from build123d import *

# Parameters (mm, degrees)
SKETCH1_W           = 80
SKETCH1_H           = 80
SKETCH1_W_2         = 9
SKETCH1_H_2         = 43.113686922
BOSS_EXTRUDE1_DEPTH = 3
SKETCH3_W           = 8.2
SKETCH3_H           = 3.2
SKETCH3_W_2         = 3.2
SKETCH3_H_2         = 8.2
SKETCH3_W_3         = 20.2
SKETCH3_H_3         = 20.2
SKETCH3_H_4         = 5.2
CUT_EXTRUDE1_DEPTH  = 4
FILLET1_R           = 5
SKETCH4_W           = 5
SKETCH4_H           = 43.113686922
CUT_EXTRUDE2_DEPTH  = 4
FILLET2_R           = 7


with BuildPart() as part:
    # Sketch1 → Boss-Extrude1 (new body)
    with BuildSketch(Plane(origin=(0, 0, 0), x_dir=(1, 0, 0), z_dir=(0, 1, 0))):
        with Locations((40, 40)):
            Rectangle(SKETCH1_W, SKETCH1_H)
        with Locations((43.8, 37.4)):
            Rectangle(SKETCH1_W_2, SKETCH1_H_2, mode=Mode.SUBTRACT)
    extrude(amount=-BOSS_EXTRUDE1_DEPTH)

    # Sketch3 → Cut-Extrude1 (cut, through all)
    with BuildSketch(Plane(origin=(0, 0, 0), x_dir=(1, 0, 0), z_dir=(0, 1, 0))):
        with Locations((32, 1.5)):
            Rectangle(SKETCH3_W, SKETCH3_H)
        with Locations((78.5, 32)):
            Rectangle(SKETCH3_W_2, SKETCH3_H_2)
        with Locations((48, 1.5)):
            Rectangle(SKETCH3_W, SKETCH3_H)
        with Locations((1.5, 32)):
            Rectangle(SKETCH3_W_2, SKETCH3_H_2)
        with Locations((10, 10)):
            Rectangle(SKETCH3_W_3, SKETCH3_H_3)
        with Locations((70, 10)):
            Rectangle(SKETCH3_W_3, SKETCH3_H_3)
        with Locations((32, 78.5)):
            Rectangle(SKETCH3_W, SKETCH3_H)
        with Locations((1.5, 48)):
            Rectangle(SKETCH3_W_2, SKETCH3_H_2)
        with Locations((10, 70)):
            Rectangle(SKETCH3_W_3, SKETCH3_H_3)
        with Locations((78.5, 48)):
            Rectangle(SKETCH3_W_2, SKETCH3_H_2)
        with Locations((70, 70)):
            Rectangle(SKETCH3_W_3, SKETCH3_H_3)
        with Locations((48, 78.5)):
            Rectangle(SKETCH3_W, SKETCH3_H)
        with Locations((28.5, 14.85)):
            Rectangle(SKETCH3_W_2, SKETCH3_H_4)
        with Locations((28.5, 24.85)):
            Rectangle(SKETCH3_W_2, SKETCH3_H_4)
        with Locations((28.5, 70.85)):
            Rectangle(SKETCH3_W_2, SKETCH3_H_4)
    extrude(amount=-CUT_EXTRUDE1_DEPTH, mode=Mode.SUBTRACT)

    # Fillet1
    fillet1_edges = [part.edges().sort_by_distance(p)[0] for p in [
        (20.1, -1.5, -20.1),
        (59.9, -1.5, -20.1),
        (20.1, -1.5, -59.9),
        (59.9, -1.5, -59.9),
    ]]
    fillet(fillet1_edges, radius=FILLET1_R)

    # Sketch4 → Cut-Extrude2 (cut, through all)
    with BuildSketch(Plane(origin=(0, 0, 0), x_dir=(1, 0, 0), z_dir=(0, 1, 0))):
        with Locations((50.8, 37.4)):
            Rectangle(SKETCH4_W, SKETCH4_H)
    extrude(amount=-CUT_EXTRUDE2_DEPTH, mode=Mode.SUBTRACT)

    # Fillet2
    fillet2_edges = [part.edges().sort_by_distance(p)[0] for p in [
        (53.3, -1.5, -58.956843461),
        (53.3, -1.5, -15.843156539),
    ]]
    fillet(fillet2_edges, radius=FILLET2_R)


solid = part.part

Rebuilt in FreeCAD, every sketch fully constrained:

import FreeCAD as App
import Part
import Sketcher

V = App.Vector
Q = App.Units.Quantity


def edges_at(feature, points):
    """Names of the edges that pass closest to the given points."""
    edges = feature.Shape.Edges
    near = lambda p: min(range(len(edges)), key=lambda i: edges[i].distToShape(Part.Vertex(*p))[0])
    return sorted({f"Edge{near(p) + 1}" for p in points})

doc = App.newDocument("Part")
body = doc.addObject("PartDesign::Body", "Body")

# Sketch on XZ plane
sketch1 = doc.addObject("Sketcher::SketchObject", "Sketch")
body.addObject(sketch1)
sketch1.AttachmentSupport = (doc.XZ_Plane, [""])
sketch1.MapMode = "FlatFace"
sketch1.addGeometry(Part.LineSegment(V(0, -80, 0), V(0, 0, 0)), False)
sketch1.addGeometry(Part.LineSegment(V(0, 0, 0), V(80, 0, 0)), False)
sketch1.addGeometry(Part.LineSegment(V(80, 0, 0), V(80, -80, 0)), False)
sketch1.addGeometry(Part.LineSegment(V(80, -80, 0), V(0, -80, 0)), False)
sketch1.addGeometry(Part.LineSegment(V(48, -16, 0), V(39, -16, 0)), False)
sketch1.addGeometry(Part.LineSegment(V(39, -16, 0), V(39, -59, 0)), False)
sketch1.addGeometry(Part.LineSegment(V(39, -59, 0), V(48, -59, 0)), False)
sketch1.addGeometry(Part.LineSegment(V(48, -59, 0), V(48, -16, 0)), False)
sketch1.addConstraint(Sketcher.Constraint("Coincident", 0, 2, 1, 1))
sketch1.addConstraint(Sketcher.Constraint("Coincident", 1, 2, 2, 1))
sketch1.addConstraint(Sketcher.Constraint("Coincident", 2, 2, 3, 1))
sketch1.addConstraint(Sketcher.Constraint("Coincident", 3, 2, 0, 1))
sketch1.addConstraint(Sketcher.Constraint("Coincident", 4, 2, 5, 1))
sketch1.addConstraint(Sketcher.Constraint("Coincident", 5, 2, 6, 1))
sketch1.addConstraint(Sketcher.Constraint("Coincident", 6, 2, 7, 1))
sketch1.addConstraint(Sketcher.Constraint("Coincident", 7, 2, 4, 1))
sketch1.addConstraint(Sketcher.Constraint("Vertical", 0))
sketch1.addConstraint(Sketcher.Constraint("Horizontal", 1))
sketch1.addConstraint(Sketcher.Constraint("Vertical", 2))
sketch1.addConstraint(Sketcher.Constraint("Horizontal", 3))
sketch1.addConstraint(Sketcher.Constraint("Horizontal", 4))
sketch1.addConstraint(Sketcher.Constraint("Vertical", 5))
sketch1.addConstraint(Sketcher.Constraint("Horizontal", 6))
sketch1.addConstraint(Sketcher.Constraint("Vertical", 7))
sketch1.addConstraint(Sketcher.Constraint("Coincident", 0, 2, -1, 1))
sketch1.addConstraint(Sketcher.Constraint("Equal", 3, 0))
sketch1.addConstraint(Sketcher.Constraint("DistanceX", 1, 1, 1, 2, Q("80 mm")))
sketch1.addConstraint(Sketcher.Constraint("DistanceX", 4, 2, 4, 1, Q("9 mm")))
sketch1.addConstraint(Sketcher.Constraint("DistanceX", -1, 1, 4, 2, Q("39.3 mm")))
sketch1.addConstraint(Sketcher.Constraint("DistanceY", 5, 2, 5, 1, Q("43.113687 mm")))
sketch1.addConstraint(Sketcher.Constraint("DistanceY", 4, 2, -1, 1, Q("15.843157 mm")))
pad1 = doc.addObject("PartDesign::Pad", "Pad")
body.addObject(pad1)
pad1.Profile = sketch1
pad1.Length = 3

# Sketch on XZ plane
sketch2 = doc.addObject("Sketcher::SketchObject", "Sketch001")
body.addObject(sketch2)
sketch2.AttachmentSupport = (doc.XZ_Plane, [""])
sketch2.MapMode = "FlatFace"
sketch2.addGeometry(Part.LineSegment(V(27.9, -3.1, 0), V(27.9, 0.1, 0)), False)
sketch2.addGeometry(Part.LineSegment(V(27.9, 0.1, 0), V(36.1, 0.1, 0)), False)
sketch2.addGeometry(Part.LineSegment(V(36.1, 0.1, 0), V(36.1, -3.1, 0)), False)
sketch2.addGeometry(Part.LineSegment(V(36.1, -3.1, 0), V(27.9, -3.1, 0)), False)
sketch2.addGeometry(Part.LineSegment(V(76.9, -36.1, 0), V(76.9, -27.9, 0)), False)
sketch2.addGeometry(Part.LineSegment(V(76.9, -27.9, 0), V(80.1, -27.9, 0)), False)
sketch2.addGeometry(Part.LineSegment(V(80.1, -27.9, 0), V(80.1, -36.1, 0)), False)
sketch2.addGeometry(Part.LineSegment(V(80.1, -36.1, 0), V(76.9, -36.1, 0)), False)
sketch2.addGeometry(Part.LineSegment(V(43.9, -3.1, 0), V(43.9, 0.1, 0)), False)
sketch2.addGeometry(Part.LineSegment(V(43.9, 0.1, 0), V(52.1, 0.1, 0)), False)
sketch2.addGeometry(Part.LineSegment(V(52.1, 0.1, 0), V(52.1, -3.1, 0)), False)
sketch2.addGeometry(Part.LineSegment(V(52.1, -3.1, 0), V(43.9, -3.1, 0)), False)
sketch2.addGeometry(Part.LineSegment(V(-0.1, -36.1, 0), V(-0.1, -27.9, 0)), False)
sketch2.addGeometry(Part.LineSegment(V(-0.1, -27.9, 0), V(3.1, -27.9, 0)), False)
sketch2.addGeometry(Part.LineSegment(V(3.1, -27.9, 0), V(3.1, -36.1, 0)), False)
sketch2.addGeometry(Part.LineSegment(V(3.1, -36.1, 0), V(-0.1, -36.1, 0)), False)
sketch2.addGeometry(Part.LineSegment(V(-0.1, -20.1, 0), V(-0.1, 0.1, 0)), False)
sketch2.addGeometry(Part.LineSegment(V(-0.1, 0.1, 0), V(20.1, 0.1, 0)), False)
sketch2.addGeometry(Part.LineSegment(V(20.1, 0.1, 0), V(20.1, -20.1, 0)), False)
sketch2.addGeometry(Part.LineSegment(V(20.1, -20.1, 0), V(-0.1, -20.1, 0)), False)
sketch2.addGeometry(Part.LineSegment(V(59.9, -20.1, 0), V(59.9, 0.1, 0)), False)
sketch2.addGeometry(Part.LineSegment(V(59.9, 0.1, 0), V(80.1, 0.1, 0)), False)
sketch2.addGeometry(Part.LineSegment(V(80.1, 0.1, 0), V(80.1, -20.1, 0)), False)
sketch2.addGeometry(Part.LineSegment(V(80.1, -20.1, 0), V(59.9, -20.1, 0)), False)
sketch2.addGeometry(Part.LineSegment(V(27.9, -80.1, 0), V(27.9, -76.9, 0)), False)
sketch2.addGeometry(Part.LineSegment(V(27.9, -76.9, 0), V(36.1, -76.9, 0)), False)
sketch2.addGeometry(Part.LineSegment(V(36.1, -76.9, 0), V(36.1, -80.1, 0)), False)
sketch2.addGeometry(Part.LineSegment(V(36.1, -80.1, 0), V(27.9, -80.1, 0)), False)
sketch2.addGeometry(Part.LineSegment(V(-0.1, -52.1, 0), V(-0.1, -43.9, 0)), False)
sketch2.addGeometry(Part.LineSegment(V(-0.1, -43.9, 0), V(3.1, -43.9, 0)), False)
sketch2.addGeometry(Part.LineSegment(V(3.1, -43.9, 0), V(3.1, -52.1, 0)), False)
sketch2.addGeometry(Part.LineSegment(V(3.1, -52.1, 0), V(-0.1, -52.1, 0)), False)
sketch2.addGeometry(Part.LineSegment(V(-0.1, -80.1, 0), V(-0.1, -59.9, 0)), False)
sketch2.addGeometry(Part.LineSegment(V(-0.1, -59.9, 0), V(20.1, -59.9, 0)), False)
sketch2.addGeometry(Part.LineSegment(V(20.1, -59.9, 0), V(20.1, -80.1, 0)), False)
sketch2.addGeometry(Part.LineSegment(V(20.1, -80.1, 0), V(-0.1, -80.1, 0)), False)
sketch2.addGeometry(Part.LineSegment(V(76.9, -52.1, 0), V(76.9, -43.9, 0)), False)
sketch2.addGeometry(Part.LineSegment(V(76.9, -43.9, 0), V(80.1, -43.9, 0)), False)
sketch2.addGeometry(Part.LineSegment(V(80.1, -43.9, 0), V(80.1, -52.1, 0)), False)
sketch2.addGeometry(Part.LineSegment(V(80.1, -52.1, 0), V(76.9, -52.1, 0)), False)
sketch2.addGeometry(Part.LineSegment(V(59.9, -80.1, 0), V(59.9, -59.9, 0)), False)
sketch2.addGeometry(Part.LineSegment(V(59.9, -59.9, 0), V(80.1, -59.9, 0)), False)
sketch2.addGeometry(Part.LineSegment(V(80.1, -59.9, 0), V(80.1, -80.1, 0)), False)
sketch2.addGeometry(Part.LineSegment(V(80.1, -80.1, 0), V(59.9, -80.1, 0)), False)
sketch2.addGeometry(Part.LineSegment(V(43.9, -80.1, 0), V(43.9, -76.9, 0)), False)
sketch2.addGeometry(Part.LineSegment(V(43.9, -76.9, 0), V(52.1, -76.9, 0)), False)
sketch2.addGeometry(Part.LineSegment(V(52.1, -76.9, 0), V(52.1, -80.1, 0)), False)
sketch2.addGeometry(Part.LineSegment(V(52.1, -80.1, 0), V(43.9, -80.1, 0)), False)
sketch2.addGeometry(Part.LineSegment(V(26.9, -17.4, 0), V(26.9, -12.2, 0)), False)
sketch2.addGeometry(Part.LineSegment(V(26.9, -12.2, 0), V(30.1, -12.2, 0)), False)
sketch2.addGeometry(Part.LineSegment(V(30.1, -12.2, 0), V(30.1, -17.4, 0)), False)
sketch2.addGeometry(Part.LineSegment(V(30.1, -17.4, 0), V(26.9, -17.4, 0)), False)
sketch2.addGeometry(Part.LineSegment(V(26.9, -27.4, 0), V(26.9, -22.2, 0)), False)
sketch2.addGeometry(Part.LineSegment(V(26.9, -22.2, 0), V(30.1, -22.2, 0)), False)
sketch2.addGeometry(Part.LineSegment(V(30.1, -22.2, 0), V(30.1, -27.4, 0)), False)
sketch2.addGeometry(Part.LineSegment(V(30.1, -27.4, 0), V(26.9, -27.4, 0)), False)
sketch2.addGeometry(Part.LineSegment(V(26.9, -73.5, 0), V(26.9, -68.2, 0)), False)
sketch2.addGeometry(Part.LineSegment(V(26.9, -68.2, 0), V(30.1, -68.2, 0)), False)
sketch2.addGeometry(Part.LineSegment(V(30.1, -68.2, 0), V(30.1, -73.5, 0)), False)
sketch2.addGeometry(Part.LineSegment(V(30.1, -73.5, 0), V(26.9, -73.5, 0)), False)
sketch2.addConstraint(Sketcher.Constraint("Coincident", 0, 2, 1, 1))
sketch2.addConstraint(Sketcher.Constraint("Coincident", 1, 2, 2, 1))
sketch2.addConstraint(Sketcher.Constraint("Coincident", 2, 2, 3, 1))
sketch2.addConstraint(Sketcher.Constraint("Coincident", 3, 2, 0, 1))
sketch2.addConstraint(Sketcher.Constraint("Coincident", 4, 2, 5, 1))
sketch2.addConstraint(Sketcher.Constraint("Coincident", 5, 2, 6, 1))
sketch2.addConstraint(Sketcher.Constraint("Coincident", 6, 2, 7, 1))
sketch2.addConstraint(Sketcher.Constraint("Coincident", 7, 2, 4, 1))
sketch2.addConstraint(Sketcher.Constraint("Coincident", 8, 2, 9, 1))
sketch2.addConstraint(Sketcher.Constraint("Coincident", 9, 2, 10, 1))
sketch2.addConstraint(Sketcher.Constraint("Coincident", 10, 2, 11, 1))
sketch2.addConstraint(Sketcher.Constraint("Coincident", 11, 2, 8, 1))
sketch2.addConstraint(Sketcher.Constraint("Coincident", 12, 2, 13, 1))
sketch2.addConstraint(Sketcher.Constraint("Coincident", 13, 2, 14, 1))
sketch2.addConstraint(Sketcher.Constraint("Coincident", 14, 2, 15, 1))
sketch2.addConstraint(Sketcher.Constraint("Coincident", 15, 2, 12, 1))
sketch2.addConstraint(Sketcher.Constraint("Coincident", 16, 2, 17, 1))
sketch2.addConstraint(Sketcher.Constraint("Coincident", 17, 2, 18, 1))
sketch2.addConstraint(Sketcher.Constraint("Coincident", 18, 2, 19, 1))
sketch2.addConstraint(Sketcher.Constraint("Coincident", 19, 2, 16, 1))
sketch2.addConstraint(Sketcher.Constraint("Coincident", 20, 2, 21, 1))
sketch2.addConstraint(Sketcher.Constraint("Coincident", 21, 2, 22, 1))
sketch2.addConstraint(Sketcher.Constraint("Coincident", 22, 2, 23, 1))
sketch2.addConstraint(Sketcher.Constraint("Coincident", 23, 2, 20, 1))
sketch2.addConstraint(Sketcher.Constraint("Coincident", 24, 2, 25, 1))
sketch2.addConstraint(Sketcher.Constraint("Coincident", 25, 2, 26, 1))
sketch2.addConstraint(Sketcher.Constraint("Coincident", 26, 2, 27, 1))
sketch2.addConstraint(Sketcher.Constraint("Coincident", 27, 2, 24, 1))
sketch2.addConstraint(Sketcher.Constraint("Coincident", 28, 2, 29, 1))
sketch2.addConstraint(Sketcher.Constraint("Coincident", 29, 2, 30, 1))
sketch2.addConstraint(Sketcher.Constraint("Coincident", 30, 2, 31, 1))
sketch2.addConstraint(Sketcher.Constraint("Coincident", 31, 2, 28, 1))
sketch2.addConstraint(Sketcher.Constraint("Coincident", 32, 2, 33, 1))
sketch2.addConstraint(Sketcher.Constraint("Coincident", 33, 2, 34, 1))
sketch2.addConstraint(Sketcher.Constraint("Coincident", 34, 2, 35, 1))
sketch2.addConstraint(Sketcher.Constraint("Coincident", 35, 2, 32, 1))
sketch2.addConstraint(Sketcher.Constraint("Coincident", 36, 2, 37, 1))
sketch2.addConstraint(Sketcher.Constraint("Coincident", 37, 2, 38, 1))
sketch2.addConstraint(Sketcher.Constraint("Coincident", 38, 2, 39, 1))
sketch2.addConstraint(Sketcher.Constraint("Coincident", 39, 2, 36, 1))
sketch2.addConstraint(Sketcher.Constraint("Coincident", 40, 2, 41, 1))
sketch2.addConstraint(Sketcher.Constraint("Coincident", 41, 2, 42, 1))
sketch2.addConstraint(Sketcher.Constraint("Coincident", 42, 2, 43, 1))
sketch2.addConstraint(Sketcher.Constraint("Coincident", 43, 2, 40, 1))
sketch2.addConstraint(Sketcher.Constraint("Coincident", 44, 2, 45, 1))
sketch2.addConstraint(Sketcher.Constraint("Coincident", 45, 2, 46, 1))
sketch2.addConstraint(Sketcher.Constraint("Coincident", 46, 2, 47, 1))
sketch2.addConstraint(Sketcher.Constraint("Coincident", 47, 2, 44, 1))
sketch2.addConstraint(Sketcher.Constraint("Coincident", 48, 2, 49, 1))
sketch2.addConstraint(Sketcher.Constraint("Coincident", 49, 2, 50, 1))
sketch2.addConstraint(Sketcher.Constraint("Coincident", 50, 2, 51, 1))
sketch2.addConstraint(Sketcher.Constraint("Coincident", 51, 2, 48, 1))
sketch2.addConstraint(Sketcher.Constraint("Coincident", 52, 2, 53, 1))
sketch2.addConstraint(Sketcher.Constraint("Coincident", 53, 2, 54, 1))
sketch2.addConstraint(Sketcher.Constraint("Coincident", 54, 2, 55, 1))
sketch2.addConstraint(Sketcher.Constraint("Coincident", 55, 2, 52, 1))
sketch2.addConstraint(Sketcher.Constraint("Coincident", 56, 2, 57, 1))
sketch2.addConstraint(Sketcher.Constraint("Coincident", 57, 2, 58, 1))
sketch2.addConstraint(Sketcher.Constraint("Coincident", 58, 2, 59, 1))
sketch2.addConstraint(Sketcher.Constraint("Coincident", 59, 2, 56, 1))
sketch2.addConstraint(Sketcher.Constraint("Vertical", 0))
sketch2.addConstraint(Sketcher.Constraint("Horizontal", 1))
sketch2.addConstraint(Sketcher.Constraint("Vertical", 2))
sketch2.addConstraint(Sketcher.Constraint("Horizontal", 3))
sketch2.addConstraint(Sketcher.Constraint("Vertical", 4))
sketch2.addConstraint(Sketcher.Constraint("Horizontal", 5))
sketch2.addConstraint(Sketcher.Constraint("Vertical", 6))
sketch2.addConstraint(Sketcher.Constraint("Horizontal", 7))
sketch2.addConstraint(Sketcher.Constraint("Vertical", 8))
sketch2.addConstraint(Sketcher.Constraint("Horizontal", 9))
sketch2.addConstraint(Sketcher.Constraint("Vertical", 10))
sketch2.addConstraint(Sketcher.Constraint("Horizontal", 11))
sketch2.addConstraint(Sketcher.Constraint("Vertical", 12))
sketch2.addConstraint(Sketcher.Constraint("Horizontal", 13))
sketch2.addConstraint(Sketcher.Constraint("Vertical", 14))
sketch2.addConstraint(Sketcher.Constraint("Horizontal", 15))
sketch2.addConstraint(Sketcher.Constraint("Vertical", 16))
sketch2.addConstraint(Sketcher.Constraint("Horizontal", 17))
sketch2.addConstraint(Sketcher.Constraint("Vertical", 18))
sketch2.addConstraint(Sketcher.Constraint("Horizontal", 19))
sketch2.addConstraint(Sketcher.Constraint("Vertical", 20))
sketch2.addConstraint(Sketcher.Constraint("Horizontal", 21))
sketch2.addConstraint(Sketcher.Constraint("Vertical", 22))
sketch2.addConstraint(Sketcher.Constraint("Horizontal", 23))
sketch2.addConstraint(Sketcher.Constraint("Vertical", 24))
sketch2.addConstraint(Sketcher.Constraint("Horizontal", 25))
sketch2.addConstraint(Sketcher.Constraint("Vertical", 26))
sketch2.addConstraint(Sketcher.Constraint("Horizontal", 27))
sketch2.addConstraint(Sketcher.Constraint("Vertical", 28))
sketch2.addConstraint(Sketcher.Constraint("Horizontal", 29))
sketch2.addConstraint(Sketcher.Constraint("Vertical", 30))
sketch2.addConstraint(Sketcher.Constraint("Horizontal", 31))
sketch2.addConstraint(Sketcher.Constraint("Vertical", 32))
sketch2.addConstraint(Sketcher.Constraint("Horizontal", 33))
sketch2.addConstraint(Sketcher.Constraint("Vertical", 34))
sketch2.addConstraint(Sketcher.Constraint("Horizontal", 35))
sketch2.addConstraint(Sketcher.Constraint("Vertical", 36))
sketch2.addConstraint(Sketcher.Constraint("Horizontal", 37))
sketch2.addConstraint(Sketcher.Constraint("Vertical", 38))
sketch2.addConstraint(Sketcher.Constraint("Horizontal", 39))
sketch2.addConstraint(Sketcher.Constraint("Vertical", 40))
sketch2.addConstraint(Sketcher.Constraint("Horizontal", 41))
sketch2.addConstraint(Sketcher.Constraint("Vertical", 42))
sketch2.addConstraint(Sketcher.Constraint("Horizontal", 43))
sketch2.addConstraint(Sketcher.Constraint("Vertical", 44))
sketch2.addConstraint(Sketcher.Constraint("Horizontal", 45))
sketch2.addConstraint(Sketcher.Constraint("Vertical", 46))
sketch2.addConstraint(Sketcher.Constraint("Horizontal", 47))
sketch2.addConstraint(Sketcher.Constraint("Vertical", 48))
sketch2.addConstraint(Sketcher.Constraint("Horizontal", 49))
sketch2.addConstraint(Sketcher.Constraint("Vertical", 50))
sketch2.addConstraint(Sketcher.Constraint("Horizontal", 51))
sketch2.addConstraint(Sketcher.Constraint("Vertical", 52))
sketch2.addConstraint(Sketcher.Constraint("Horizontal", 53))
sketch2.addConstraint(Sketcher.Constraint("Vertical", 54))
sketch2.addConstraint(Sketcher.Constraint("Horizontal", 55))
sketch2.addConstraint(Sketcher.Constraint("Vertical", 56))
sketch2.addConstraint(Sketcher.Constraint("Horizontal", 57))
sketch2.addConstraint(Sketcher.Constraint("Vertical", 58))
sketch2.addConstraint(Sketcher.Constraint("Horizontal", 59))
sketch2.addConstraint(Sketcher.Constraint("Horizontal", 1, 2, 8, 2))
sketch2.addConstraint(Sketcher.Constraint("Horizontal", 3, 2, 10, 2))
sketch2.addConstraint(Sketcher.Constraint("Horizontal", 5, 2, 12, 2))
sketch2.addConstraint(Sketcher.Constraint("Horizontal", 7, 2, 14, 2))
sketch2.addConstraint(Sketcher.Constraint("Horizontal", 9, 2, 16, 2))
sketch2.addConstraint(Sketcher.Constraint("Horizontal", 17, 2, 20, 2))
sketch2.addConstraint(Sketcher.Constraint("Horizontal", 19, 2, 22, 2))
sketch2.addConstraint(Sketcher.Constraint("Horizontal", 27, 2, 34, 2))
sketch2.addConstraint(Sketcher.Constraint("Horizontal", 29, 2, 36, 2))
sketch2.addConstraint(Sketcher.Constraint("Horizontal", 31, 2, 38, 2))
sketch2.addConstraint(Sketcher.Constraint("Horizontal", 33, 2, 40, 2))
sketch2.addConstraint(Sketcher.Constraint("Horizontal", 35, 2, 42, 2))
sketch2.addConstraint(Sketcher.Constraint("Horizontal", 25, 2, 44, 2))
sketch2.addConstraint(Sketcher.Constraint("Horizontal", 43, 2, 46, 2))
sketch2.addConstraint(Sketcher.Constraint("Vertical", 15, 2, 16, 2))
sketch2.addConstraint(Sketcher.Constraint("Vertical", 6, 2, 21, 2))
sketch2.addConstraint(Sketcher.Constraint("Vertical", 3, 2, 24, 2))
sketch2.addConstraint(Sketcher.Constraint("Vertical", 2, 2, 25, 2))
sketch2.addConstraint(Sketcher.Constraint("Vertical", 19, 2, 28, 2))
sketch2.addConstraint(Sketcher.Constraint("Vertical", 14, 2, 29, 2))
sketch2.addConstraint(Sketcher.Constraint("Vertical", 31, 2, 32, 2))
sketch2.addConstraint(Sketcher.Constraint("Vertical", 18, 2, 33, 2))
sketch2.addConstraint(Sketcher.Constraint("Vertical", 7, 2, 36, 2))
sketch2.addConstraint(Sketcher.Constraint("Vertical", 22, 2, 37, 2))
sketch2.addConstraint(Sketcher.Constraint("Vertical", 23, 2, 40, 2))
sketch2.addConstraint(Sketcher.Constraint("Vertical", 38, 2, 41, 2))
sketch2.addConstraint(Sketcher.Constraint("Vertical", 11, 2, 44, 2))
sketch2.addConstraint(Sketcher.Constraint("Vertical", 10, 2, 45, 2))
sketch2.addConstraint(Sketcher.Constraint("Vertical", 51, 2, 52, 2))
sketch2.addConstraint(Sketcher.Constraint("Vertical", 50, 2, 53, 2))
sketch2.addConstraint(Sketcher.Constraint("Vertical", 55, 2, 56, 2))
sketch2.addConstraint(Sketcher.Constraint("Vertical", 54, 2, 57, 2))
sketch2.addConstraint(Sketcher.Constraint("Equal", 3, 9))
sketch2.addConstraint(Sketcher.Constraint("Equal", 7, 13))
sketch2.addConstraint(Sketcher.Constraint("Equal", 19, 21))
sketch2.addConstraint(Sketcher.Constraint("Equal", 39, 49))
sketch2.addConstraint(Sketcher.Constraint("Equal", 59, 0))
sketch2.addConstraint(Sketcher.Constraint("Equal", 47, 4))
sketch2.addConstraint(Sketcher.Constraint("Equal", 43, 16))
sketch2.addConstraint(Sketcher.Constraint("Equal", 10, 24))
sketch2.addConstraint(Sketcher.Constraint("Equal", 14, 28))
sketch2.addConstraint(Sketcher.Constraint("Equal", 22, 32))
sketch2.addConstraint(Sketcher.Constraint("Equal", 50, 52))
sketch2.addConstraint(Sketcher.Constraint("Equal", 54, 56))
sketch2.addConstraint(Sketcher.Constraint("DistanceX", 1, 1, 1, 2, Q("8.2 mm")))
sketch2.addConstraint(Sketcher.Constraint("DistanceX", 5, 1, 5, 2, Q("3.2 mm")))
sketch2.addConstraint(Sketcher.Constraint("DistanceX", 17, 1, 17, 2, Q("20.2 mm")))
sketch2.addConstraint(Sketcher.Constraint("DistanceY", 48, 1, 48, 2, Q("5.2 mm")))
sketch2.addConstraint(Sketcher.Constraint("DistanceY", 4, 2, 1, 2, Q("28 mm")))
sketch2.addConstraint(Sketcher.Constraint("DistanceX", 3, 2, 4, 2, Q("49 mm")))
sketch2.addConstraint(Sketcher.Constraint("DistanceX", 0, 2, 8, 2, Q("16 mm")))
sketch2.addConstraint(Sketcher.Constraint("DistanceX", 12, 2, 3, 2, Q("28 mm")))
sketch2.addConstraint(Sketcher.Constraint("DistanceY", 24, 2, 13, 2, Q("49 mm")))
sketch2.addConstraint(Sketcher.Constraint("DistanceY", 28, 2, 12, 2, Q("16 mm")))
sketch2.addConstraint(Sketcher.Constraint("DistanceX", 48, 2, 3, 2, Q("1 mm")))
sketch2.addConstraint(Sketcher.Constraint("DistanceY", 52, 2, 48, 2, Q("10 mm")))
sketch2.addConstraint(Sketcher.Constraint("DistanceX", -1, 1, 0, 2, Q("27.9 mm")))
sketch2.addConstraint(Sketcher.Constraint("DistanceY", -1, 1, 0, 2, Q("0.1 mm")))
sketch2.addConstraint(Sketcher.Constraint("DistanceY", 48, 2, -1, 1, Q("12.25 mm")))
sketch2.addConstraint(Sketcher.Constraint("DistanceY", 56, 2, -1, 1, Q("68.25 mm")))
pocket1 = doc.addObject("PartDesign::Pocket", "Pocket")
body.addObject(pocket1)
pocket1.Profile = sketch2
pocket1.Type = "ThroughAll"
pocket1.Reversed = True
doc.recompute()

fillet = doc.addObject("PartDesign::Fillet", "Fillet")
body.addObject(fillet)
fillet.Base = (pocket1, edges_at(pocket1, [
    (20.1, -1.5, -20.1),
    (59.9, -1.5, -20.1),
    (20.1, -1.5, -59.9),
    (59.9, -1.5, -59.9),
]))
fillet.Radius = 5

# Sketch on XZ plane
sketch3 = doc.addObject("Sketcher::SketchObject", "Sketch002")
body.addObject(sketch3)
sketch3.AttachmentSupport = (doc.XZ_Plane, [""])
sketch3.MapMode = "FlatFace"
sketch3.addGeometry(Part.LineSegment(V(48, -59, 0), V(48, -16, 0)), False)
sketch3.addGeometry(Part.LineSegment(V(48, -16, 0), V(53, -16, 0)), False)
sketch3.addGeometry(Part.LineSegment(V(53, -16, 0), V(53, -59, 0)), False)
sketch3.addGeometry(Part.LineSegment(V(53, -59, 0), V(48, -59, 0)), False)
sketch3.addConstraint(Sketcher.Constraint("Coincident", 0, 2, 1, 1))
sketch3.addConstraint(Sketcher.Constraint("Coincident", 1, 2, 2, 1))
sketch3.addConstraint(Sketcher.Constraint("Coincident", 2, 2, 3, 1))
sketch3.addConstraint(Sketcher.Constraint("Coincident", 3, 2, 0, 1))
sketch3.addConstraint(Sketcher.Constraint("Vertical", 0))
sketch3.addConstraint(Sketcher.Constraint("Horizontal", 1))
sketch3.addConstraint(Sketcher.Constraint("Vertical", 2))
sketch3.addConstraint(Sketcher.Constraint("Horizontal", 3))
sketch3.addConstraint(Sketcher.Constraint("DistanceX", 1, 1, 1, 2, Q("5 mm")))
sketch3.addConstraint(Sketcher.Constraint("DistanceX", -1, 1, 0, 2, Q("48.3 mm")))
sketch3.addConstraint(Sketcher.Constraint("DistanceY", 0, 1, 0, 2, Q("43.113687 mm")))
sketch3.addConstraint(Sketcher.Constraint("DistanceY", 0, 2, -1, 1, Q("15.843157 mm")))
pocket2 = doc.addObject("PartDesign::Pocket", "Pocket001")
body.addObject(pocket2)
pocket2.Profile = sketch3
pocket2.Type = "ThroughAll"
pocket2.Reversed = True
doc.recompute()

fillet2 = doc.addObject("PartDesign::Fillet", "Fillet001")
body.addObject(fillet2)
fillet2.Base = (pocket2, edges_at(pocket2, [(53.3, -1.5, -58.957), (53.3, -1.5, -15.843)]))
fillet2.Radius = 7

doc.recompute()
